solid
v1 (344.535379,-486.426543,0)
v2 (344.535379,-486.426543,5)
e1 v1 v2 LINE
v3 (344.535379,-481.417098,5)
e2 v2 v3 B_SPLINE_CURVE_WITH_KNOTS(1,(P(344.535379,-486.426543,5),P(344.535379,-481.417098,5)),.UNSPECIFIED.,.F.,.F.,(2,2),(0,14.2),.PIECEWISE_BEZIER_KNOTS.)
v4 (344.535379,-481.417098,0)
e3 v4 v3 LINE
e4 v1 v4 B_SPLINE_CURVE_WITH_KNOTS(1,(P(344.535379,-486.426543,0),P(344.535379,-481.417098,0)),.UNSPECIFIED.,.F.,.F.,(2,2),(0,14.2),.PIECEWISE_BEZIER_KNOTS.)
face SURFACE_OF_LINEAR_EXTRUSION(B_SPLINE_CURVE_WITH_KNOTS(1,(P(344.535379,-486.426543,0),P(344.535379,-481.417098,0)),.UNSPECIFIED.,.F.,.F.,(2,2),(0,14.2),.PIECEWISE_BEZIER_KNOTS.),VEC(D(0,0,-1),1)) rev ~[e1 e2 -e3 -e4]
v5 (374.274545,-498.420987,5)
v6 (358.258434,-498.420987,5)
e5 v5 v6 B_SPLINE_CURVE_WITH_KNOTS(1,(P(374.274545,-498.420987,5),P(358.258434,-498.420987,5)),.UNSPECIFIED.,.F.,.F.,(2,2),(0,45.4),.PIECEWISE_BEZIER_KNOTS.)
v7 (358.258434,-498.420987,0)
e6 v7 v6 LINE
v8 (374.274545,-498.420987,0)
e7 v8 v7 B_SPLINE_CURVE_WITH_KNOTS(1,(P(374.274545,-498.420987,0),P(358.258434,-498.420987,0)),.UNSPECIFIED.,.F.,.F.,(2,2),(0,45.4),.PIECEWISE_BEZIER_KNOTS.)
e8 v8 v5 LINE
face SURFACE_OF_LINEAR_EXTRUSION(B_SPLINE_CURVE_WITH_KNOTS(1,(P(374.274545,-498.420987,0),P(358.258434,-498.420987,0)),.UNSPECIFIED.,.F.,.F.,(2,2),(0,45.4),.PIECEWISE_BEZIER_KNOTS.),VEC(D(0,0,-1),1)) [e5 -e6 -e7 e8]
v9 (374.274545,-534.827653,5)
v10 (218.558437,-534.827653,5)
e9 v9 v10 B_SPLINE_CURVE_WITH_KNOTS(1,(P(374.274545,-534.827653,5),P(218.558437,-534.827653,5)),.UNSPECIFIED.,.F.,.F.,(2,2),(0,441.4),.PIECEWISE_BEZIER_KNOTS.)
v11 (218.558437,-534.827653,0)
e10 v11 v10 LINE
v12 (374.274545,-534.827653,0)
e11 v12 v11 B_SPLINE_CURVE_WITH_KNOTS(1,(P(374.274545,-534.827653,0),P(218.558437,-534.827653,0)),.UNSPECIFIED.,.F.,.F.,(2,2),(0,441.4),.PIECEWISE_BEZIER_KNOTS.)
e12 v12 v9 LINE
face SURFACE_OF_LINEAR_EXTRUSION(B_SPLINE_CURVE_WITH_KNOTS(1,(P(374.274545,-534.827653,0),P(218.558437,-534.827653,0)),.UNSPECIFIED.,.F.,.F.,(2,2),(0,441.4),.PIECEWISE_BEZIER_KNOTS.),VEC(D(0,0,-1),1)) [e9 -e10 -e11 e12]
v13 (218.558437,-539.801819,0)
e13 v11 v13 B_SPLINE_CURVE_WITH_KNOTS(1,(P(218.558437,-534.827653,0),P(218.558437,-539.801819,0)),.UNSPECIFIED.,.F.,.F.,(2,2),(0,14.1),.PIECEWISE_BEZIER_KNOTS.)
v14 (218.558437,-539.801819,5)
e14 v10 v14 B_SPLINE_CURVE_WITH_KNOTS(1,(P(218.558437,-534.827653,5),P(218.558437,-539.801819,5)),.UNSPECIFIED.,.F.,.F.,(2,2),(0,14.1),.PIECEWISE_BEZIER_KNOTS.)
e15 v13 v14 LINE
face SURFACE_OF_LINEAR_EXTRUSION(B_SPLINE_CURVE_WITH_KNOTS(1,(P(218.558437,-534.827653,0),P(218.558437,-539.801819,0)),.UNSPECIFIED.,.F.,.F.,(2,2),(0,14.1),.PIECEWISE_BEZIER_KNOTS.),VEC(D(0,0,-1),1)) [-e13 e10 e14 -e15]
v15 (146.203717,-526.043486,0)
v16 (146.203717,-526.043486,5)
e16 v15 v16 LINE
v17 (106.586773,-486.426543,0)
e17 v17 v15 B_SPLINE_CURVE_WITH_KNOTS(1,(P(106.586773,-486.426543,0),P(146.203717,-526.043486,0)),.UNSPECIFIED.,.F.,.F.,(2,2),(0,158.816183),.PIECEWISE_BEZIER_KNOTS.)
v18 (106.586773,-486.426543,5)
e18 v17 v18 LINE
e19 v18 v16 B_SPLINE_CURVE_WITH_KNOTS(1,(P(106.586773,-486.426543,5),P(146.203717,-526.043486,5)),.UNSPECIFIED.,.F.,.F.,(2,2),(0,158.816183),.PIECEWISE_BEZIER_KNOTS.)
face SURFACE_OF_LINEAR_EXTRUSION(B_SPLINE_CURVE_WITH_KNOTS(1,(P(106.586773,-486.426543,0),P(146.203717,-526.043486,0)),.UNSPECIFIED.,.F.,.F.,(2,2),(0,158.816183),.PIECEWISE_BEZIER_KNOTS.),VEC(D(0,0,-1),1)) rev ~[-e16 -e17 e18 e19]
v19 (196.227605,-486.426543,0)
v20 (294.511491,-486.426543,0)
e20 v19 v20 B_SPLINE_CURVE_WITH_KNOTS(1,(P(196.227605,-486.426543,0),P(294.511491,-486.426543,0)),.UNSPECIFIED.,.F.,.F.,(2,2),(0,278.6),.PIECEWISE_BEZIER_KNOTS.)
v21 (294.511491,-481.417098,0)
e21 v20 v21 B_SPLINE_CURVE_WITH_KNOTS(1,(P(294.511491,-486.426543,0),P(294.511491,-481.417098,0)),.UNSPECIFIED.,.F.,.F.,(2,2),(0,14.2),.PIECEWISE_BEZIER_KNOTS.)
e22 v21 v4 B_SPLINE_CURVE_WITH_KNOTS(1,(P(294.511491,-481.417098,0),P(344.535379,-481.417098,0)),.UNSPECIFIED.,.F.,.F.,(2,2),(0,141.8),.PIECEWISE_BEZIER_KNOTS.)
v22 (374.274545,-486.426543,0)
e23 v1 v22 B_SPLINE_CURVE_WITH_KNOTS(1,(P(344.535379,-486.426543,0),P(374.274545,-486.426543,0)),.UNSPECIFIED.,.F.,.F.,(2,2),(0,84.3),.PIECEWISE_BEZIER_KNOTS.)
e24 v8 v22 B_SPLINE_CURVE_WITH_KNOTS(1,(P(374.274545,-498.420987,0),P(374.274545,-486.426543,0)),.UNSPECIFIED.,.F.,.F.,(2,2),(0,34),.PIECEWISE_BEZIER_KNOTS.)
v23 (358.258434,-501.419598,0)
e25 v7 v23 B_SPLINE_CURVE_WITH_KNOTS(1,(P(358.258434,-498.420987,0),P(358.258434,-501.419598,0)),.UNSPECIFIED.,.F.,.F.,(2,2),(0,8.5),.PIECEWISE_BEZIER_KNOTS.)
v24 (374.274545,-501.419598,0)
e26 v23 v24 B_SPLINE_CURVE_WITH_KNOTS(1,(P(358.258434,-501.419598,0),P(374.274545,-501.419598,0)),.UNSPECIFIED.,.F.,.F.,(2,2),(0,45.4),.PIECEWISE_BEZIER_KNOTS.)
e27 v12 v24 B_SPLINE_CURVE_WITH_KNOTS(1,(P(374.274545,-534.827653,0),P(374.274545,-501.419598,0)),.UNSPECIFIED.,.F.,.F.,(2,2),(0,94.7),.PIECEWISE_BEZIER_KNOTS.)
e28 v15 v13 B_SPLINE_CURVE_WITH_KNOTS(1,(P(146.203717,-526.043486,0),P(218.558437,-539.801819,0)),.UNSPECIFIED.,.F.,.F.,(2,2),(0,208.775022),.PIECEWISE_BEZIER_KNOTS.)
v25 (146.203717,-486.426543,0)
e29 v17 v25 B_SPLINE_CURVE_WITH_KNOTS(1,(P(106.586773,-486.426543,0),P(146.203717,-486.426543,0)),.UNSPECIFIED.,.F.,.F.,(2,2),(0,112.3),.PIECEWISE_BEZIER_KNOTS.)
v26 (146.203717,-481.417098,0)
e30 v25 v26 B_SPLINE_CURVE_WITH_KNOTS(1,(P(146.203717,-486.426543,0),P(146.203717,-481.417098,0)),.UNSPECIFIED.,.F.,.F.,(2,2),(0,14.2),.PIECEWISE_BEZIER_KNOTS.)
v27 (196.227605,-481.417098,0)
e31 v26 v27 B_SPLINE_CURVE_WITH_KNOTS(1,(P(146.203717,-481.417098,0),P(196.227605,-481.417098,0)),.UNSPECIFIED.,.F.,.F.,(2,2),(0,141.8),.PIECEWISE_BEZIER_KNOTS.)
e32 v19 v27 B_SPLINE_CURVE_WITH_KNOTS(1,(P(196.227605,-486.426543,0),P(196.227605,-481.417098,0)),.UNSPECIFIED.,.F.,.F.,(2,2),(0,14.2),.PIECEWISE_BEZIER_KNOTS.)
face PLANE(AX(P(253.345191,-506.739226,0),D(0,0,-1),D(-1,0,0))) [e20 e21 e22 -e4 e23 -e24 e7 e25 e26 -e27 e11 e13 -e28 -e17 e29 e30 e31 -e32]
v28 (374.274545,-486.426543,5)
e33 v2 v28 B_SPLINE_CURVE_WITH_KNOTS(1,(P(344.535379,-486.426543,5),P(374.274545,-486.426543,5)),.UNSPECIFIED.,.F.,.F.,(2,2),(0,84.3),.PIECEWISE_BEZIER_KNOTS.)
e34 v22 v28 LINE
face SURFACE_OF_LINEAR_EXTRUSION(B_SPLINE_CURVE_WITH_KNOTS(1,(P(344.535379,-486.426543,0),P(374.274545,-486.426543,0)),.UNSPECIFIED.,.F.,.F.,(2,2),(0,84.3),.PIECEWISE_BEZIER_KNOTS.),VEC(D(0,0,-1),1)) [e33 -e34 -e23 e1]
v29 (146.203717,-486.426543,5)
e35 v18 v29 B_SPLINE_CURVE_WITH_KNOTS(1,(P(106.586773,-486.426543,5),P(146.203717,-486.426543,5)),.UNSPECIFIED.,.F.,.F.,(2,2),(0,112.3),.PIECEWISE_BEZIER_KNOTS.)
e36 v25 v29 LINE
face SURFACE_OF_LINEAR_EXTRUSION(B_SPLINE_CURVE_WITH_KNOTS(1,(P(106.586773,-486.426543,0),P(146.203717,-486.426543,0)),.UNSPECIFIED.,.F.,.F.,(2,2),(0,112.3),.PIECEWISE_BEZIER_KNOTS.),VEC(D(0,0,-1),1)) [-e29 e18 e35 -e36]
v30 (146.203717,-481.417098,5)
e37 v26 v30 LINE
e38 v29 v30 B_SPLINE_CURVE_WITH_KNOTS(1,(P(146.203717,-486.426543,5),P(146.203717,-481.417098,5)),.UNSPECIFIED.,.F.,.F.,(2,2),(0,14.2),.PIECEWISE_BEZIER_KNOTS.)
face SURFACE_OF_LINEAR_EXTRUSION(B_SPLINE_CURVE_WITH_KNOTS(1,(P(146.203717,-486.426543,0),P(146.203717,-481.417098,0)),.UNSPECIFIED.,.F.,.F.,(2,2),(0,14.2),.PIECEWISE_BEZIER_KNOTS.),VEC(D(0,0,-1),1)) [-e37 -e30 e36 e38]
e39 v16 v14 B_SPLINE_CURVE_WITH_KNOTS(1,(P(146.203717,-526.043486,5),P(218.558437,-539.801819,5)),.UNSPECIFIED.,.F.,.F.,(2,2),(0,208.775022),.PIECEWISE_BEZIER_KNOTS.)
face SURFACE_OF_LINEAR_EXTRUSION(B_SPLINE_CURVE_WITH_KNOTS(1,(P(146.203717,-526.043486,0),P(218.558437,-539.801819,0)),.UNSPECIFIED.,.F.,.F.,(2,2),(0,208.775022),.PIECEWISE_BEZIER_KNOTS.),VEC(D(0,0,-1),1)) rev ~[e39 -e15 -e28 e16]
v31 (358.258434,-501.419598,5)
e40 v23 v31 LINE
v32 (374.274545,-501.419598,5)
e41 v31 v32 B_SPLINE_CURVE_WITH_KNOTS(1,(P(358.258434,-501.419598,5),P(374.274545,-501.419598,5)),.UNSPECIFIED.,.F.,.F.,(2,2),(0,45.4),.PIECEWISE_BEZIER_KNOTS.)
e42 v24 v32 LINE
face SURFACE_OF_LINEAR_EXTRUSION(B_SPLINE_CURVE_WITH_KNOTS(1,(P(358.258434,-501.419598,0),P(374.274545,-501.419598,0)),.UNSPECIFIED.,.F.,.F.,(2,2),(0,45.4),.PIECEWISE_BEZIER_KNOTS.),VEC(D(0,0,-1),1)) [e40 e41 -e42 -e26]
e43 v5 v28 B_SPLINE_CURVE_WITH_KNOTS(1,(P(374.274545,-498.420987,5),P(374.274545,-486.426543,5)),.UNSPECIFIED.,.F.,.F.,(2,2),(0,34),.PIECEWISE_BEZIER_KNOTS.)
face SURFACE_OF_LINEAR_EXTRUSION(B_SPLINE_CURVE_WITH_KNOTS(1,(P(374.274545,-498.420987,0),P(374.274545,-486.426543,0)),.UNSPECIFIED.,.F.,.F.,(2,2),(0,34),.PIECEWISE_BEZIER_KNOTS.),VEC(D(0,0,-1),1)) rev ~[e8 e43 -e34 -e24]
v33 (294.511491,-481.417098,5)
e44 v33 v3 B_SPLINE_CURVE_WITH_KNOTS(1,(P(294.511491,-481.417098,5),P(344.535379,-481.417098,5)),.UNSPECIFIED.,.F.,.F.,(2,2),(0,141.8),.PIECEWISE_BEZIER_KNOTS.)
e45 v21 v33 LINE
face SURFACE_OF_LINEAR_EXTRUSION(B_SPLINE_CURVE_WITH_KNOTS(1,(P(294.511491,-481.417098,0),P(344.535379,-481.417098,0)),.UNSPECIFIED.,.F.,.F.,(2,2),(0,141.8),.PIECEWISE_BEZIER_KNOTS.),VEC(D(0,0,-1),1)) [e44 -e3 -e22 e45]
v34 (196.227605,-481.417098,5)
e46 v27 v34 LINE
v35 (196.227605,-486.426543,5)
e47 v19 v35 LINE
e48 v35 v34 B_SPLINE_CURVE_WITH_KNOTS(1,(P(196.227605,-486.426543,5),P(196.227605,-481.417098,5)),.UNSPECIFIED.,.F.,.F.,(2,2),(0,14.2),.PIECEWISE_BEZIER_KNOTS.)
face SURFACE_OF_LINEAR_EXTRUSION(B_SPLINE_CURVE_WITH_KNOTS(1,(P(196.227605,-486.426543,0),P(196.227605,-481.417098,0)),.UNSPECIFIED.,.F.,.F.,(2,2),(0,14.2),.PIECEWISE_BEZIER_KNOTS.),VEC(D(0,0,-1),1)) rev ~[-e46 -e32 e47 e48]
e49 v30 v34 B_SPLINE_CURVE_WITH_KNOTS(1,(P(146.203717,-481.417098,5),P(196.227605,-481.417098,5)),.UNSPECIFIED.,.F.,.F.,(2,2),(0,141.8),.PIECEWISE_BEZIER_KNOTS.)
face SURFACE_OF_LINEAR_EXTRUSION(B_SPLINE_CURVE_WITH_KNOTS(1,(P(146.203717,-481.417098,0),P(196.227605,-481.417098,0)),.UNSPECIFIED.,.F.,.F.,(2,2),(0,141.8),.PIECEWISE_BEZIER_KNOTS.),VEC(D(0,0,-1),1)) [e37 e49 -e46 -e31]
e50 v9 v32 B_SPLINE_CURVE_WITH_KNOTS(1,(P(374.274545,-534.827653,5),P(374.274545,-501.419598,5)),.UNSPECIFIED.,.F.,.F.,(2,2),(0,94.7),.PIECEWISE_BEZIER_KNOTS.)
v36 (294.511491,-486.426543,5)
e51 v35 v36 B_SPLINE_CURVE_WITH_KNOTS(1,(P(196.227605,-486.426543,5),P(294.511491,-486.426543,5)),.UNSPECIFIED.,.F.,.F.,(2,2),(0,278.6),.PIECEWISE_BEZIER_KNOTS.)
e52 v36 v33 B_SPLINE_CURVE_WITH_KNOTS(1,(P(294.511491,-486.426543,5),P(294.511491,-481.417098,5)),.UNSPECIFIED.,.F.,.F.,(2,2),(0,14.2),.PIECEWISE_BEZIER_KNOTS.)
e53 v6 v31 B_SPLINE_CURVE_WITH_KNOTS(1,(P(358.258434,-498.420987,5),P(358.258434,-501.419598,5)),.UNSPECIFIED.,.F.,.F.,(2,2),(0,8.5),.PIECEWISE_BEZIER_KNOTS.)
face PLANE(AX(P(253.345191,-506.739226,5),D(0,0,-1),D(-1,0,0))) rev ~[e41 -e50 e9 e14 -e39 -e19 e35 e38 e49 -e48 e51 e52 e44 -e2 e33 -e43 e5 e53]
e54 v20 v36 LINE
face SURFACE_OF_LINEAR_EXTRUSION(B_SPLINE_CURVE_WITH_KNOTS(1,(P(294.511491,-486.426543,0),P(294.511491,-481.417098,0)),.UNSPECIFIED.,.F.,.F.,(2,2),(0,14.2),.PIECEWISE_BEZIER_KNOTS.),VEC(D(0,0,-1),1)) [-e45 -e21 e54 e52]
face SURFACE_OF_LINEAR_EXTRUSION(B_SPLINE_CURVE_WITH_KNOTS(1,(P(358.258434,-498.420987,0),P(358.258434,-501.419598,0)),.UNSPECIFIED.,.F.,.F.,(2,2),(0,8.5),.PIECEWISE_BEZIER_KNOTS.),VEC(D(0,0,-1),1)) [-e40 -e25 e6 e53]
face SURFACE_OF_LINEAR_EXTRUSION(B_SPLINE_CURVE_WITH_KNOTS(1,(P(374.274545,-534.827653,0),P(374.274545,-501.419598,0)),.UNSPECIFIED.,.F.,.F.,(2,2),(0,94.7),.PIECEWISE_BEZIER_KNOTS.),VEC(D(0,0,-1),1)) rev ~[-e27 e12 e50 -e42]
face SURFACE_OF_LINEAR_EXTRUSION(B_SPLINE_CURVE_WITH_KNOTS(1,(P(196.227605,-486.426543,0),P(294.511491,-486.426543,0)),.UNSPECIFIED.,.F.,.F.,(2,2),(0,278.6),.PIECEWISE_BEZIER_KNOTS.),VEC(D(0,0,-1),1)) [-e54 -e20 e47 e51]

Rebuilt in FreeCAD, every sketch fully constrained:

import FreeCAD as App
import Part
import Sketcher

V = App.Vector

doc = App.newDocument("Part")
body = doc.addObject("PartDesign::Body", "Body")

sketch1 = body.newObject("Sketcher::SketchObject", "Sketch")
sketch1.AttachmentSupport = (doc.getObject("XY_Plane"), [""])
sketch1.MapMode = "FlatFace"
sketch1.addGeometry(Part.BSplineCurve([V(106.586773, -486.426543, 0), V(146.203717, -486.426543, 0)], [2, 2], [0, 112.3], False, 1, [1, 1], False), False)
sketch1.addGeometry(Part.BSplineCurve([V(106.586773, -486.426543, 0), V(146.203717, -526.043486, 0)], [2, 2], [0, 158.816183], False, 1, [1, 1], False), False)
sketch1.addGeometry(Part.BSplineCurve([V(146.203717, -526.043486, 0), V(218.558437, -539.801819, 0)], [2, 2], [0, 208.775022], False, 1, [1, 1], False), False)
sketch1.addGeometry(Part.BSplineCurve([V(218.558437, -534.827653, 0), V(218.558437, -539.801819, 0)], [2, 2], [0, 14.1], False, 1, [1, 1], False), False)
sketch1.addGeometry(Part.BSplineCurve([V(374.274545, -534.827653, 0), V(218.558437, -534.827653, 0)], [2, 2], [0, 441.4], False, 1, [1, 1], False), False)
sketch1.addGeometry(Part.BSplineCurve([V(374.274545, -534.827653, 0), V(374.274545, -501.419598, 0)], [2, 2], [0, 94.7], False, 1, [1, 1], False), False)
sketch1.addGeometry(Part.BSplineCurve([V(358.258434, -501.419598, 0), V(374.274545, -501.419598, 0)], [2, 2], [0, 45.4], False, 1, [1, 1], False), False)
sketch1.addGeometry(Part.BSplineCurve([V(358.258434, -498.420987, 0), V(358.258434, -501.419598, 0)], [2, 2], [0, 8.5], False, 1, [1, 1], False), False)
sketch1.addGeometry(Part.BSplineCurve([V(374.274545, -498.420987, 0), V(358.258434, -498.420987, 0)], [2, 2], [0, 45.4], False, 1, [1, 1], False), False)
sketch1.addGeometry(Part.BSplineCurve([V(374.274545, -498.420987, 0), V(374.274545, -486.426543, 0)], [2, 2], [0, 34], False, 1, [1, 1], False), False)
sketch1.addGeometry(Part.BSplineCurve([V(344.535379, -486.426543, 0), V(374.274545, -486.426543, 0)], [2, 2], [0, 84.3], False, 1, [1, 1], False), False)
sketch1.addGeometry(Part.BSplineCurve([V(344.535379, -486.426543, 0), V(344.535379, -481.417098, 0)], [2, 2], [0, 14.2], False, 1, [1, 1], False), False)
sketch1.addGeometry(Part.BSplineCurve([V(294.511491, -481.417098, 0), V(344.535379, -481.417098, 0)], [2, 2], [0, 141.8], False, 1, [1, 1], False), False)
sketch1.addGeometry(Part.BSplineCurve([V(294.511491, -486.426543, 0), V(294.511491, -481.417098, 0)], [2, 2], [0, 14.2], False, 1, [1, 1], False), False)
sketch1.addGeometry(Part.BSplineCurve([V(196.227605, -486.426543, 0), V(294.511491, -486.426543, 0)], [2, 2], [0, 278.6], False, 1, [1, 1], False), False)
sketch1.addGeometry(Part.BSplineCurve([V(196.227605, -486.426543, 0), V(196.227605, -481.417098, 0)], [2, 2], [0, 14.2], False, 1, [1, 1], False), False)
sketch1.addGeometry(Part.BSplineCurve([V(146.203717, -481.417098, 0), V(196.227605, -481.417098, 0)], [2, 2], [0, 141.8], False, 1, [1, 1], False), False)
sketch1.addGeometry(Part.BSplineCurve([V(146.203717, -486.426543, 0), V(146.203717, -481.417098, 0)], [2, 2], [0, 14.2], False, 1, [1, 1], False), False)
sketch1.addConstraint(Sketcher.Constraint("Block", 0))
sketch1.addConstraint(Sketcher.Constraint("Block", 1))
sketch1.addConstraint(Sketcher.Constraint("Block", 2))
sketch1.addConstraint(Sketcher.Constraint("Block", 3))
sketch1.addConstraint(Sketcher.Constraint("Block", 4))
sketch1.addConstraint(Sketcher.Constraint("Block", 5))
sketch1.addConstraint(Sketcher.Constraint("Block", 6))
sketch1.addConstraint(Sketcher.Constraint("Block", 7))
sketch1.addConstraint(Sketcher.Constraint("Block", 8))
sketch1.addConstraint(Sketcher.Constraint("Block", 9))
sketch1.addConstraint(Sketcher.Constraint("Block", 10))
sketch1.addConstraint(Sketcher.Constraint("Block", 11))
sketch1.addConstraint(Sketcher.Constraint("Block", 12))
sketch1.addConstraint(Sketcher.Constraint("Block", 13))
sketch1.addConstraint(Sketcher.Constraint("Block", 14))
sketch1.addConstraint(Sketcher.Constraint("Block", 15))
sketch1.addConstraint(Sketcher.Constraint("Block", 16))
sketch1.addConstraint(Sketcher.Constraint("Block", 17))
pad1 = body.newObject("PartDesign::Pad", "Pad")
pad1.Profile = sketch1
pad1.Length = 5

doc.recompute()
